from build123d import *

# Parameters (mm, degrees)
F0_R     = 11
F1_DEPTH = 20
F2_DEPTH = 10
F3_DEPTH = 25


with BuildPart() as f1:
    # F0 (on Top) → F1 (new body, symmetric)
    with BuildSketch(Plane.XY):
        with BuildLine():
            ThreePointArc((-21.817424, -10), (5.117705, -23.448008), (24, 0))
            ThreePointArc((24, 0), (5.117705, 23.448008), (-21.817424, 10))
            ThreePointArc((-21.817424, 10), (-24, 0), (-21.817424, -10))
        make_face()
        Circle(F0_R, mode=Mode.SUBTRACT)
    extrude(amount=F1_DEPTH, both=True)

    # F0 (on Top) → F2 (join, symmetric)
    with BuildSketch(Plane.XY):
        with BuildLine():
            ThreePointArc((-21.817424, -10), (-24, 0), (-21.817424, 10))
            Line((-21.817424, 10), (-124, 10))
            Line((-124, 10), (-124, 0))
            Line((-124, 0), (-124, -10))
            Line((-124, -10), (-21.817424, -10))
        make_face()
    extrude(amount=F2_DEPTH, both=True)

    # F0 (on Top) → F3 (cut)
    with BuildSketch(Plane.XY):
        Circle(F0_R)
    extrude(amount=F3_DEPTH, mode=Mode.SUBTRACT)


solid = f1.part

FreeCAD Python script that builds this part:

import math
import FreeCAD as App
import Part
import Sketcher
from FreeCAD import Vector

doc = App.newDocument("Part")
body = doc.addObject("PartDesign::Body", "Body")

# Sketch on XY plane
sketch1 = body.newObject("Sketcher::SketchObject", "Sketch")
sketch1.AttachmentSupport = (doc.getObject("XY_Plane"), [""])
sketch1.MapMode = "FlatFace"
sketch1.addGeometry([
    Part.ArcOfCircle(Part.Circle(Vector(0, 0, 0), Vector(0, 0, 1), 24), math.radians(-155), math.radians(0)),
    Part.ArcOfCircle(Part.Circle(Vector(0, 0, 0), Vector(0, 0, 1), 24), math.radians(0), math.radians(155)),
    Part.ArcOfCircle(Part.Circle(Vector(0, 0, 0), Vector(0, 0, 1), 24), math.radians(155), math.radians(205)),
    Part.Circle(Vector(0, 0, 0), Vector(0, 0, 1), 11),
], False)
sketch1.addConstraint([
    Sketcher.Constraint("Tangent", 0, 2, 1, 1),
    Sketcher.Constraint("Tangent", 1, 2, 2, 1),
    Sketcher.Constraint("Tangent", 2, 2, 0, 1),
    Sketcher.Constraint("Coincident", 0, 3, -1, 1),
    Sketcher.Constraint("Coincident", 3, 3, -1, 1),
    Sketcher.Constraint("PointOnObject", 0, 2, -1),
    Sketcher.Constraint("Vertical", 1, 2, 2, 2),
    Sketcher.Constraint("Diameter", 3, 22.0),
    Sketcher.Constraint("Radius", 0, 24.0),
    Sketcher.Constraint("DistanceY", -1, 1, 1, 2, 10.0),
])
pad1 = body.newObject("PartDesign::Pad", "Pad")
pad1.Profile = sketch1
pad1.Length = 40
pad1.Midplane = True

# Sketch on XY plane
sketch2 = body.newObject("Sketcher::SketchObject", "Sketch001")
sketch2.AttachmentSupport = (doc.getObject("XY_Plane"), [""])
sketch2.MapMode = "FlatFace"
sketch2.addGeometry([
    Part.ArcOfCircle(Part.Circle(Vector(0, 0, 0), Vector(0, 0, 1), 24), math.radians(155), math.radians(205)),
    Part.LineSegment(Vector(-22, 10, 0), Vector(-124, 10, 0)),
    Part.LineSegment(Vector(-124, 10, 0), Vector(-124, -10, 0)),
    Part.LineSegment(Vector(-124, -10, 0), Vector(-22, -10, 0)),
], False)
sketch2.addConstraint([
    Sketcher.Constraint("Coincident", 0, 1, 1, 1),
    Sketcher.Constraint("Coincident", 1, 2, 2, 1),
    Sketcher.Constraint("Coincident", 2, 2, 3, 1),
    Sketcher.Constraint("Coincident", 3, 2, 0, 2),
    Sketcher.Constraint("Horizontal", 1),
    Sketcher.Constraint("Vertical", 2),
    Sketcher.Constraint("Horizontal", 3),
    Sketcher.Constraint("Coincident", 0, 3, -1, 1),
    Sketcher.Constraint("Vertical", 0, 1, 3, 2),
    Sketcher.Constraint("DistanceY", 2, 2, 2, 1, 20.0),
    Sketcher.Constraint("DistanceX", 1, 2, -1, 1, 124.0),
    Sketcher.Constraint("Radius", 0, 23.999998),
])
pad2 = body.newObject("PartDesign::Pad", "Pad001")
pad2.Profile = sketch2
pad2.Length = 20
pad2.Midplane = True

# Sketch on XY plane
sketch3 = body.newObject("Sketcher::SketchObject", "Sketch002")
sketch3.AttachmentSupport = (doc.getObject("XY_Plane"), [""])
sketch3.MapMode = "FlatFace"
sketch3.addGeometry(Part.Circle(Vector(0, 0, 0), Vector(0, 0, 1), 11), False)
sketch3.addConstraint([
    Sketcher.Constraint("Coincident", 0, 3, -1, 1),
    Sketcher.Constraint("Diameter", 0, 22.0),
])
pocket1 = body.newObject("PartDesign::Pocket", "Pocket")
pocket1.Profile = sketch3
pocket1.Length = 25
pocket1.Reversed = True

doc.recompute()
